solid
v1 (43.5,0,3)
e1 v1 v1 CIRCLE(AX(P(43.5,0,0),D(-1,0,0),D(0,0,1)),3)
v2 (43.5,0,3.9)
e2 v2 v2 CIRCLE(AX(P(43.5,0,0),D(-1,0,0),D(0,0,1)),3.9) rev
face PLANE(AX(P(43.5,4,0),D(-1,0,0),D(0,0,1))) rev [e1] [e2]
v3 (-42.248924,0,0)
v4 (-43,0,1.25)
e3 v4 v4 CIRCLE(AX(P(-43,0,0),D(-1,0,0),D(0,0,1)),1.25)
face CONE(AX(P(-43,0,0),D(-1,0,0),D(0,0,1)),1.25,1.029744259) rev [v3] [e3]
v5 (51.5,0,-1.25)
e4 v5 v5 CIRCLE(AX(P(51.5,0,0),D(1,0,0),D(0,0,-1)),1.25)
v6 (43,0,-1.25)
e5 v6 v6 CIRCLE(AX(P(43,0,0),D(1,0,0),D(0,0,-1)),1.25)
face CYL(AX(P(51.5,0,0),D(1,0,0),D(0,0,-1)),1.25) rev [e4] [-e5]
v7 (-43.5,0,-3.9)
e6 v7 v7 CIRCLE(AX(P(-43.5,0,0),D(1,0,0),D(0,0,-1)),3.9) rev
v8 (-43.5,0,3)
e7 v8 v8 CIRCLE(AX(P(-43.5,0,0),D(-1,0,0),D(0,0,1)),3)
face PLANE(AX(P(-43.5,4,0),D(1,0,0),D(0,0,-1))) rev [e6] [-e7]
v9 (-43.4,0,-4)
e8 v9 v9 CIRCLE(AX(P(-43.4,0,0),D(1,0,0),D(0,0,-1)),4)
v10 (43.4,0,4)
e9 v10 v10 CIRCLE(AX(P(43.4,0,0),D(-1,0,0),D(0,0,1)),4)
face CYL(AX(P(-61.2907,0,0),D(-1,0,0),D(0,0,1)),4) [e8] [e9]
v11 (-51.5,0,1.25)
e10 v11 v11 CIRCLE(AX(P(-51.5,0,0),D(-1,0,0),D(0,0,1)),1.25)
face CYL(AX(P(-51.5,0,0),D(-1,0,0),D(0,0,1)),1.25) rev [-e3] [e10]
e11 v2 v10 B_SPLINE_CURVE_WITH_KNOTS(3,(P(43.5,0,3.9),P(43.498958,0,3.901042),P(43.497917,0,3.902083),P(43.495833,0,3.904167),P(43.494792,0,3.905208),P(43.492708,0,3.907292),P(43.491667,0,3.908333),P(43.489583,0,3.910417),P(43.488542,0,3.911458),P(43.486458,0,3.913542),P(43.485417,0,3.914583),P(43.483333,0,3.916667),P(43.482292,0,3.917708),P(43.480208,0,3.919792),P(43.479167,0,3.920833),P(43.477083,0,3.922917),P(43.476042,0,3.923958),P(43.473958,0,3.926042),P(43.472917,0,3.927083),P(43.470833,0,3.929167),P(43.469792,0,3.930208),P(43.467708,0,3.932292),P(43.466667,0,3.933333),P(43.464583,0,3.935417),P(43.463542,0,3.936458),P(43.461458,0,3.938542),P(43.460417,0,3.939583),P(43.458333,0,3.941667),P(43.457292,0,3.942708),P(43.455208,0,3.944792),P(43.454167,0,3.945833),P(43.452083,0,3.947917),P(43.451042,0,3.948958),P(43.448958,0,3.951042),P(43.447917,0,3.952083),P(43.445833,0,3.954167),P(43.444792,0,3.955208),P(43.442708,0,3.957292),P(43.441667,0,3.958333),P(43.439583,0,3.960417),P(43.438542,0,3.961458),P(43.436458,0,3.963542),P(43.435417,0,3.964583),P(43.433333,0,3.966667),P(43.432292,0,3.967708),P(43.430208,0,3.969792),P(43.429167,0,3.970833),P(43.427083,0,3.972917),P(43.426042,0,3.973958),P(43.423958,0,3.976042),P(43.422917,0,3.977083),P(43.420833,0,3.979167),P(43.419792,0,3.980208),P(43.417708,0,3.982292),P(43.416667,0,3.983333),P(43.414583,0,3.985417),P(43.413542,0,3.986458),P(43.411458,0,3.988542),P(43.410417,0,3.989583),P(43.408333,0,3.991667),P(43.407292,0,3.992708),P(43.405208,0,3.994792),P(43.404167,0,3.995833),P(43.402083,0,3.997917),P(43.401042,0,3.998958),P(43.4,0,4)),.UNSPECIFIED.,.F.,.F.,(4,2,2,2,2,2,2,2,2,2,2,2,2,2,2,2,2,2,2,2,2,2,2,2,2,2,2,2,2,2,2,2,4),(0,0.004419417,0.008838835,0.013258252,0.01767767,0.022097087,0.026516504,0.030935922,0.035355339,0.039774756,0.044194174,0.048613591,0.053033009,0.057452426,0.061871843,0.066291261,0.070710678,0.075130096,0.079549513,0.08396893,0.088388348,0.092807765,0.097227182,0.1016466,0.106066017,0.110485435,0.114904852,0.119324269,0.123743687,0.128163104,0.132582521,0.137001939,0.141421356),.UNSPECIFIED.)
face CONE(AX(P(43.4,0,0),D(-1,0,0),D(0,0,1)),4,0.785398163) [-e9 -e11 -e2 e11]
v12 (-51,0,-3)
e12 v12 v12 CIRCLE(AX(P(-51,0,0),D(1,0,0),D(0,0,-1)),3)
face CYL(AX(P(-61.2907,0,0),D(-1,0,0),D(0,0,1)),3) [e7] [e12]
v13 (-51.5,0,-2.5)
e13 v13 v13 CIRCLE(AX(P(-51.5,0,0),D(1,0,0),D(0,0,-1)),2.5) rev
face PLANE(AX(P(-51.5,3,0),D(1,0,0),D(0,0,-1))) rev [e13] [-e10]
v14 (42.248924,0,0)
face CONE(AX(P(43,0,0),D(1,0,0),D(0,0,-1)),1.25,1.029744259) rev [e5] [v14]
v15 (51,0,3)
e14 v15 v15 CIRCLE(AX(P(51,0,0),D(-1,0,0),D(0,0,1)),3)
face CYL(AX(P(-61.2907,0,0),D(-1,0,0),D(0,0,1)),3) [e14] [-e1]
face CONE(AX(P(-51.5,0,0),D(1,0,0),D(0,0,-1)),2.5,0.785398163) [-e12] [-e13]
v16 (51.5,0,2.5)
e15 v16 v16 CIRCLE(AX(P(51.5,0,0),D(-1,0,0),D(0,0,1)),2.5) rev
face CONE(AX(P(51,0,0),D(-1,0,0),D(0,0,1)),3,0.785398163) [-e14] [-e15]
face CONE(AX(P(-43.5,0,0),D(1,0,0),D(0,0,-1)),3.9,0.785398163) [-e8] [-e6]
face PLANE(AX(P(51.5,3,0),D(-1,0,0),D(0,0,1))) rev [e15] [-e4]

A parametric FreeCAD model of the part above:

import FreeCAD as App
import Part
import Sketcher
Q = App.Units.Quantity


def edges_at(feature, points):
    """Names of the edges that pass closest to the given points."""
    edges = feature.Shape.Edges
    near = lambda p: min(range(len(edges)), key=lambda i: edges[i].distToShape(Part.Vertex(*p))[0])
    return sorted({f"Edge{near(p) + 1}" for p in points})


def add_polygon(sketch, points):
    """Adds a closed chain of lines whose ends are joined by coincident constraints."""
    first, n = sketch.GeometryCount, len(points)
    for a, b in zip(points, points[1:] + points[:1]):
        sketch.addGeometry(Part.LineSegment(App.Vector(*a, 0), App.Vector(*b, 0)), False)
    for i in range(n):
        sketch.addConstraint(Sketcher.Constraint("Coincident", first + i, 2, first + (i + 1) % n, 1))

doc = App.newDocument("Part")
params = doc.addObject("Spreadsheet::Sheet", "Params")
for row, (alias, value) in enumerate([
    ("sketch1_width", "87 mm"),
    ("sketch1_width2", "8 mm"),
    ("sketch1_height", "1 mm"),
    ("sketch1_height2", "3 mm"),
    ("revolution_angle", "360 deg"),
    ("chamfer_size", "0.5 mm"),
    ("chamfer2_size", "0.1 mm"),
    ("sketch2_width", "8.5 mm"),
    ("sketch2_height", "1.25 mm"),
    ("groove_angle", "360 deg"),
], start=1):
    params.set(f"A{row}", alias)
    params.set(f"B{row}", "=" + value)
    params.setAlias(f"B{row}", alias)

body = doc.addObject("PartDesign::Body", "Body")

# Sketch on XY plane
sketch1 = body.newObject("Sketcher::SketchObject", "Sketch")
sketch1.AttachmentSupport = (doc.getObject("XY_Plane"), [""])
sketch1.MapMode = "FlatFace"
add_polygon(sketch1, [(43.5, 4), (-43.5, 4), (-43.5, 3), (-51.5, 3), (-51.5, 0), (51.5, 0), (51.5, 3), (43.5, 3)])  # lines 0-7
sketch1.addConstraint(Sketcher.Constraint("Horizontal", 0))
sketch1.addConstraint(Sketcher.Constraint("Vertical", 1))
sketch1.addConstraint(Sketcher.Constraint("Horizontal", 2))
sketch1.addConstraint(Sketcher.Constraint("Vertical", 3))
sketch1.addConstraint(Sketcher.Constraint("Horizontal", 4))
sketch1.addConstraint(Sketcher.Constraint("Vertical", 5))
sketch1.addConstraint(Sketcher.Constraint("Horizontal", 6))
sketch1.addConstraint(Sketcher.Constraint("Vertical", 7))
sketch1.addConstraint(Sketcher.Constraint("Symmetric", 3, 2, 4, 2, -1, 1))
sketch1.addConstraint(Sketcher.Constraint("Symmetric", 1, 2, 6, 2, -2))
sketch1.addConstraint(Sketcher.Constraint("DistanceX", 0, 2, 0, 1, 87.0))
sketch1.addConstraint(Sketcher.Constraint("DistanceX", 2, 2, 2, 1, 8.0))
sketch1.addConstraint(Sketcher.Constraint("DistanceY", 1, 2, 1, 1, 1.0))
sketch1.addConstraint(Sketcher.Constraint("DistanceY", 3, 2, 3, 1, 3.0))
sketch1.setExpression("Constraints[18]", "Params.sketch1_width")
sketch1.setExpression("Constraints[19]", "Params.sketch1_width2")
sketch1.setExpression("Constraints[20]", "Params.sketch1_height")
sketch1.setExpression("Constraints[21]", "Params.sketch1_height2")
revolution = body.newObject("PartDesign::Revolution", "Revolution")
revolution.Profile = sketch1
revolution.ReferenceAxis = (sketch1, ["H_Axis"])
revolution.setExpression("Angle", "Params.revolution_angle")
doc.recompute()

chamfer = body.newObject("PartDesign::Chamfer", "Chamfer")
chamfer.Base = (revolution, edges_at(revolution, [(-51.5, 0, -3), (51.5, 0, -3)]))
chamfer.setExpression("Size", "Params.chamfer_size")
doc.recompute()

chamfer2 = body.newObject("PartDesign::Chamfer", "Chamfer001")
chamfer2.Base = (chamfer, edges_at(chamfer, [(-43.5, 0, -4), (43.5, 0, -4)]))
chamfer2.setExpression("Size", "Params.chamfer2_size")

# Sketch on XZ plane
sketch2 = body.newObject("Sketcher::SketchObject", "Sketch001")
sketch2.AttachmentSupport = (doc.getObject("XZ_Plane"), [""])
sketch2.MapMode = "FlatFace"
add_polygon(sketch2, [(42.2, 0), (51.5, 0), (51.5, -1.2), (43, -1.2)])  # lines 0-3
sketch2.addConstraint(Sketcher.Constraint("Horizontal", 0))
sketch2.addConstraint(Sketcher.Constraint("Vertical", 1))
sketch2.addConstraint(Sketcher.Constraint("Horizontal", 2))
sketch2.addConstraint(Sketcher.Constraint("PointOnObject", 0, 2, -1))
sketch2.addConstraint(Sketcher.Constraint("Angle", 3, Q("121 deg")))
sketch2.addConstraint(Sketcher.Constraint("DistanceX", 2, 2, 2, 1, 8.5))
sketch2.addConstraint(Sketcher.Constraint("DistanceX", -1, 1, 2, 2, 43.0))
sketch2.addConstraint(Sketcher.Constraint("DistanceY", 1, 2, 1, 1, 1.25))
sketch2.setExpression("Constraints[9]", "Params.sketch2_width")
sketch2.setExpression("Constraints[11]", "Params.sketch2_height")
groove = body.newObject("PartDesign::Groove", "Groove")
groove.Profile = sketch2
groove.ReferenceAxis = (sketch2, ["H_Axis"])
groove.setExpression("Angle", "Params.groove_angle")
doc.recompute()

mirrored = body.newObject("PartDesign::Mirrored", "Mirrored")
mirrored.Originals = [groove]
mirrored.MirrorPlane = (doc.getObject("YZ_Plane"), [""])
body.Tip = mirrored

doc.recompute()
